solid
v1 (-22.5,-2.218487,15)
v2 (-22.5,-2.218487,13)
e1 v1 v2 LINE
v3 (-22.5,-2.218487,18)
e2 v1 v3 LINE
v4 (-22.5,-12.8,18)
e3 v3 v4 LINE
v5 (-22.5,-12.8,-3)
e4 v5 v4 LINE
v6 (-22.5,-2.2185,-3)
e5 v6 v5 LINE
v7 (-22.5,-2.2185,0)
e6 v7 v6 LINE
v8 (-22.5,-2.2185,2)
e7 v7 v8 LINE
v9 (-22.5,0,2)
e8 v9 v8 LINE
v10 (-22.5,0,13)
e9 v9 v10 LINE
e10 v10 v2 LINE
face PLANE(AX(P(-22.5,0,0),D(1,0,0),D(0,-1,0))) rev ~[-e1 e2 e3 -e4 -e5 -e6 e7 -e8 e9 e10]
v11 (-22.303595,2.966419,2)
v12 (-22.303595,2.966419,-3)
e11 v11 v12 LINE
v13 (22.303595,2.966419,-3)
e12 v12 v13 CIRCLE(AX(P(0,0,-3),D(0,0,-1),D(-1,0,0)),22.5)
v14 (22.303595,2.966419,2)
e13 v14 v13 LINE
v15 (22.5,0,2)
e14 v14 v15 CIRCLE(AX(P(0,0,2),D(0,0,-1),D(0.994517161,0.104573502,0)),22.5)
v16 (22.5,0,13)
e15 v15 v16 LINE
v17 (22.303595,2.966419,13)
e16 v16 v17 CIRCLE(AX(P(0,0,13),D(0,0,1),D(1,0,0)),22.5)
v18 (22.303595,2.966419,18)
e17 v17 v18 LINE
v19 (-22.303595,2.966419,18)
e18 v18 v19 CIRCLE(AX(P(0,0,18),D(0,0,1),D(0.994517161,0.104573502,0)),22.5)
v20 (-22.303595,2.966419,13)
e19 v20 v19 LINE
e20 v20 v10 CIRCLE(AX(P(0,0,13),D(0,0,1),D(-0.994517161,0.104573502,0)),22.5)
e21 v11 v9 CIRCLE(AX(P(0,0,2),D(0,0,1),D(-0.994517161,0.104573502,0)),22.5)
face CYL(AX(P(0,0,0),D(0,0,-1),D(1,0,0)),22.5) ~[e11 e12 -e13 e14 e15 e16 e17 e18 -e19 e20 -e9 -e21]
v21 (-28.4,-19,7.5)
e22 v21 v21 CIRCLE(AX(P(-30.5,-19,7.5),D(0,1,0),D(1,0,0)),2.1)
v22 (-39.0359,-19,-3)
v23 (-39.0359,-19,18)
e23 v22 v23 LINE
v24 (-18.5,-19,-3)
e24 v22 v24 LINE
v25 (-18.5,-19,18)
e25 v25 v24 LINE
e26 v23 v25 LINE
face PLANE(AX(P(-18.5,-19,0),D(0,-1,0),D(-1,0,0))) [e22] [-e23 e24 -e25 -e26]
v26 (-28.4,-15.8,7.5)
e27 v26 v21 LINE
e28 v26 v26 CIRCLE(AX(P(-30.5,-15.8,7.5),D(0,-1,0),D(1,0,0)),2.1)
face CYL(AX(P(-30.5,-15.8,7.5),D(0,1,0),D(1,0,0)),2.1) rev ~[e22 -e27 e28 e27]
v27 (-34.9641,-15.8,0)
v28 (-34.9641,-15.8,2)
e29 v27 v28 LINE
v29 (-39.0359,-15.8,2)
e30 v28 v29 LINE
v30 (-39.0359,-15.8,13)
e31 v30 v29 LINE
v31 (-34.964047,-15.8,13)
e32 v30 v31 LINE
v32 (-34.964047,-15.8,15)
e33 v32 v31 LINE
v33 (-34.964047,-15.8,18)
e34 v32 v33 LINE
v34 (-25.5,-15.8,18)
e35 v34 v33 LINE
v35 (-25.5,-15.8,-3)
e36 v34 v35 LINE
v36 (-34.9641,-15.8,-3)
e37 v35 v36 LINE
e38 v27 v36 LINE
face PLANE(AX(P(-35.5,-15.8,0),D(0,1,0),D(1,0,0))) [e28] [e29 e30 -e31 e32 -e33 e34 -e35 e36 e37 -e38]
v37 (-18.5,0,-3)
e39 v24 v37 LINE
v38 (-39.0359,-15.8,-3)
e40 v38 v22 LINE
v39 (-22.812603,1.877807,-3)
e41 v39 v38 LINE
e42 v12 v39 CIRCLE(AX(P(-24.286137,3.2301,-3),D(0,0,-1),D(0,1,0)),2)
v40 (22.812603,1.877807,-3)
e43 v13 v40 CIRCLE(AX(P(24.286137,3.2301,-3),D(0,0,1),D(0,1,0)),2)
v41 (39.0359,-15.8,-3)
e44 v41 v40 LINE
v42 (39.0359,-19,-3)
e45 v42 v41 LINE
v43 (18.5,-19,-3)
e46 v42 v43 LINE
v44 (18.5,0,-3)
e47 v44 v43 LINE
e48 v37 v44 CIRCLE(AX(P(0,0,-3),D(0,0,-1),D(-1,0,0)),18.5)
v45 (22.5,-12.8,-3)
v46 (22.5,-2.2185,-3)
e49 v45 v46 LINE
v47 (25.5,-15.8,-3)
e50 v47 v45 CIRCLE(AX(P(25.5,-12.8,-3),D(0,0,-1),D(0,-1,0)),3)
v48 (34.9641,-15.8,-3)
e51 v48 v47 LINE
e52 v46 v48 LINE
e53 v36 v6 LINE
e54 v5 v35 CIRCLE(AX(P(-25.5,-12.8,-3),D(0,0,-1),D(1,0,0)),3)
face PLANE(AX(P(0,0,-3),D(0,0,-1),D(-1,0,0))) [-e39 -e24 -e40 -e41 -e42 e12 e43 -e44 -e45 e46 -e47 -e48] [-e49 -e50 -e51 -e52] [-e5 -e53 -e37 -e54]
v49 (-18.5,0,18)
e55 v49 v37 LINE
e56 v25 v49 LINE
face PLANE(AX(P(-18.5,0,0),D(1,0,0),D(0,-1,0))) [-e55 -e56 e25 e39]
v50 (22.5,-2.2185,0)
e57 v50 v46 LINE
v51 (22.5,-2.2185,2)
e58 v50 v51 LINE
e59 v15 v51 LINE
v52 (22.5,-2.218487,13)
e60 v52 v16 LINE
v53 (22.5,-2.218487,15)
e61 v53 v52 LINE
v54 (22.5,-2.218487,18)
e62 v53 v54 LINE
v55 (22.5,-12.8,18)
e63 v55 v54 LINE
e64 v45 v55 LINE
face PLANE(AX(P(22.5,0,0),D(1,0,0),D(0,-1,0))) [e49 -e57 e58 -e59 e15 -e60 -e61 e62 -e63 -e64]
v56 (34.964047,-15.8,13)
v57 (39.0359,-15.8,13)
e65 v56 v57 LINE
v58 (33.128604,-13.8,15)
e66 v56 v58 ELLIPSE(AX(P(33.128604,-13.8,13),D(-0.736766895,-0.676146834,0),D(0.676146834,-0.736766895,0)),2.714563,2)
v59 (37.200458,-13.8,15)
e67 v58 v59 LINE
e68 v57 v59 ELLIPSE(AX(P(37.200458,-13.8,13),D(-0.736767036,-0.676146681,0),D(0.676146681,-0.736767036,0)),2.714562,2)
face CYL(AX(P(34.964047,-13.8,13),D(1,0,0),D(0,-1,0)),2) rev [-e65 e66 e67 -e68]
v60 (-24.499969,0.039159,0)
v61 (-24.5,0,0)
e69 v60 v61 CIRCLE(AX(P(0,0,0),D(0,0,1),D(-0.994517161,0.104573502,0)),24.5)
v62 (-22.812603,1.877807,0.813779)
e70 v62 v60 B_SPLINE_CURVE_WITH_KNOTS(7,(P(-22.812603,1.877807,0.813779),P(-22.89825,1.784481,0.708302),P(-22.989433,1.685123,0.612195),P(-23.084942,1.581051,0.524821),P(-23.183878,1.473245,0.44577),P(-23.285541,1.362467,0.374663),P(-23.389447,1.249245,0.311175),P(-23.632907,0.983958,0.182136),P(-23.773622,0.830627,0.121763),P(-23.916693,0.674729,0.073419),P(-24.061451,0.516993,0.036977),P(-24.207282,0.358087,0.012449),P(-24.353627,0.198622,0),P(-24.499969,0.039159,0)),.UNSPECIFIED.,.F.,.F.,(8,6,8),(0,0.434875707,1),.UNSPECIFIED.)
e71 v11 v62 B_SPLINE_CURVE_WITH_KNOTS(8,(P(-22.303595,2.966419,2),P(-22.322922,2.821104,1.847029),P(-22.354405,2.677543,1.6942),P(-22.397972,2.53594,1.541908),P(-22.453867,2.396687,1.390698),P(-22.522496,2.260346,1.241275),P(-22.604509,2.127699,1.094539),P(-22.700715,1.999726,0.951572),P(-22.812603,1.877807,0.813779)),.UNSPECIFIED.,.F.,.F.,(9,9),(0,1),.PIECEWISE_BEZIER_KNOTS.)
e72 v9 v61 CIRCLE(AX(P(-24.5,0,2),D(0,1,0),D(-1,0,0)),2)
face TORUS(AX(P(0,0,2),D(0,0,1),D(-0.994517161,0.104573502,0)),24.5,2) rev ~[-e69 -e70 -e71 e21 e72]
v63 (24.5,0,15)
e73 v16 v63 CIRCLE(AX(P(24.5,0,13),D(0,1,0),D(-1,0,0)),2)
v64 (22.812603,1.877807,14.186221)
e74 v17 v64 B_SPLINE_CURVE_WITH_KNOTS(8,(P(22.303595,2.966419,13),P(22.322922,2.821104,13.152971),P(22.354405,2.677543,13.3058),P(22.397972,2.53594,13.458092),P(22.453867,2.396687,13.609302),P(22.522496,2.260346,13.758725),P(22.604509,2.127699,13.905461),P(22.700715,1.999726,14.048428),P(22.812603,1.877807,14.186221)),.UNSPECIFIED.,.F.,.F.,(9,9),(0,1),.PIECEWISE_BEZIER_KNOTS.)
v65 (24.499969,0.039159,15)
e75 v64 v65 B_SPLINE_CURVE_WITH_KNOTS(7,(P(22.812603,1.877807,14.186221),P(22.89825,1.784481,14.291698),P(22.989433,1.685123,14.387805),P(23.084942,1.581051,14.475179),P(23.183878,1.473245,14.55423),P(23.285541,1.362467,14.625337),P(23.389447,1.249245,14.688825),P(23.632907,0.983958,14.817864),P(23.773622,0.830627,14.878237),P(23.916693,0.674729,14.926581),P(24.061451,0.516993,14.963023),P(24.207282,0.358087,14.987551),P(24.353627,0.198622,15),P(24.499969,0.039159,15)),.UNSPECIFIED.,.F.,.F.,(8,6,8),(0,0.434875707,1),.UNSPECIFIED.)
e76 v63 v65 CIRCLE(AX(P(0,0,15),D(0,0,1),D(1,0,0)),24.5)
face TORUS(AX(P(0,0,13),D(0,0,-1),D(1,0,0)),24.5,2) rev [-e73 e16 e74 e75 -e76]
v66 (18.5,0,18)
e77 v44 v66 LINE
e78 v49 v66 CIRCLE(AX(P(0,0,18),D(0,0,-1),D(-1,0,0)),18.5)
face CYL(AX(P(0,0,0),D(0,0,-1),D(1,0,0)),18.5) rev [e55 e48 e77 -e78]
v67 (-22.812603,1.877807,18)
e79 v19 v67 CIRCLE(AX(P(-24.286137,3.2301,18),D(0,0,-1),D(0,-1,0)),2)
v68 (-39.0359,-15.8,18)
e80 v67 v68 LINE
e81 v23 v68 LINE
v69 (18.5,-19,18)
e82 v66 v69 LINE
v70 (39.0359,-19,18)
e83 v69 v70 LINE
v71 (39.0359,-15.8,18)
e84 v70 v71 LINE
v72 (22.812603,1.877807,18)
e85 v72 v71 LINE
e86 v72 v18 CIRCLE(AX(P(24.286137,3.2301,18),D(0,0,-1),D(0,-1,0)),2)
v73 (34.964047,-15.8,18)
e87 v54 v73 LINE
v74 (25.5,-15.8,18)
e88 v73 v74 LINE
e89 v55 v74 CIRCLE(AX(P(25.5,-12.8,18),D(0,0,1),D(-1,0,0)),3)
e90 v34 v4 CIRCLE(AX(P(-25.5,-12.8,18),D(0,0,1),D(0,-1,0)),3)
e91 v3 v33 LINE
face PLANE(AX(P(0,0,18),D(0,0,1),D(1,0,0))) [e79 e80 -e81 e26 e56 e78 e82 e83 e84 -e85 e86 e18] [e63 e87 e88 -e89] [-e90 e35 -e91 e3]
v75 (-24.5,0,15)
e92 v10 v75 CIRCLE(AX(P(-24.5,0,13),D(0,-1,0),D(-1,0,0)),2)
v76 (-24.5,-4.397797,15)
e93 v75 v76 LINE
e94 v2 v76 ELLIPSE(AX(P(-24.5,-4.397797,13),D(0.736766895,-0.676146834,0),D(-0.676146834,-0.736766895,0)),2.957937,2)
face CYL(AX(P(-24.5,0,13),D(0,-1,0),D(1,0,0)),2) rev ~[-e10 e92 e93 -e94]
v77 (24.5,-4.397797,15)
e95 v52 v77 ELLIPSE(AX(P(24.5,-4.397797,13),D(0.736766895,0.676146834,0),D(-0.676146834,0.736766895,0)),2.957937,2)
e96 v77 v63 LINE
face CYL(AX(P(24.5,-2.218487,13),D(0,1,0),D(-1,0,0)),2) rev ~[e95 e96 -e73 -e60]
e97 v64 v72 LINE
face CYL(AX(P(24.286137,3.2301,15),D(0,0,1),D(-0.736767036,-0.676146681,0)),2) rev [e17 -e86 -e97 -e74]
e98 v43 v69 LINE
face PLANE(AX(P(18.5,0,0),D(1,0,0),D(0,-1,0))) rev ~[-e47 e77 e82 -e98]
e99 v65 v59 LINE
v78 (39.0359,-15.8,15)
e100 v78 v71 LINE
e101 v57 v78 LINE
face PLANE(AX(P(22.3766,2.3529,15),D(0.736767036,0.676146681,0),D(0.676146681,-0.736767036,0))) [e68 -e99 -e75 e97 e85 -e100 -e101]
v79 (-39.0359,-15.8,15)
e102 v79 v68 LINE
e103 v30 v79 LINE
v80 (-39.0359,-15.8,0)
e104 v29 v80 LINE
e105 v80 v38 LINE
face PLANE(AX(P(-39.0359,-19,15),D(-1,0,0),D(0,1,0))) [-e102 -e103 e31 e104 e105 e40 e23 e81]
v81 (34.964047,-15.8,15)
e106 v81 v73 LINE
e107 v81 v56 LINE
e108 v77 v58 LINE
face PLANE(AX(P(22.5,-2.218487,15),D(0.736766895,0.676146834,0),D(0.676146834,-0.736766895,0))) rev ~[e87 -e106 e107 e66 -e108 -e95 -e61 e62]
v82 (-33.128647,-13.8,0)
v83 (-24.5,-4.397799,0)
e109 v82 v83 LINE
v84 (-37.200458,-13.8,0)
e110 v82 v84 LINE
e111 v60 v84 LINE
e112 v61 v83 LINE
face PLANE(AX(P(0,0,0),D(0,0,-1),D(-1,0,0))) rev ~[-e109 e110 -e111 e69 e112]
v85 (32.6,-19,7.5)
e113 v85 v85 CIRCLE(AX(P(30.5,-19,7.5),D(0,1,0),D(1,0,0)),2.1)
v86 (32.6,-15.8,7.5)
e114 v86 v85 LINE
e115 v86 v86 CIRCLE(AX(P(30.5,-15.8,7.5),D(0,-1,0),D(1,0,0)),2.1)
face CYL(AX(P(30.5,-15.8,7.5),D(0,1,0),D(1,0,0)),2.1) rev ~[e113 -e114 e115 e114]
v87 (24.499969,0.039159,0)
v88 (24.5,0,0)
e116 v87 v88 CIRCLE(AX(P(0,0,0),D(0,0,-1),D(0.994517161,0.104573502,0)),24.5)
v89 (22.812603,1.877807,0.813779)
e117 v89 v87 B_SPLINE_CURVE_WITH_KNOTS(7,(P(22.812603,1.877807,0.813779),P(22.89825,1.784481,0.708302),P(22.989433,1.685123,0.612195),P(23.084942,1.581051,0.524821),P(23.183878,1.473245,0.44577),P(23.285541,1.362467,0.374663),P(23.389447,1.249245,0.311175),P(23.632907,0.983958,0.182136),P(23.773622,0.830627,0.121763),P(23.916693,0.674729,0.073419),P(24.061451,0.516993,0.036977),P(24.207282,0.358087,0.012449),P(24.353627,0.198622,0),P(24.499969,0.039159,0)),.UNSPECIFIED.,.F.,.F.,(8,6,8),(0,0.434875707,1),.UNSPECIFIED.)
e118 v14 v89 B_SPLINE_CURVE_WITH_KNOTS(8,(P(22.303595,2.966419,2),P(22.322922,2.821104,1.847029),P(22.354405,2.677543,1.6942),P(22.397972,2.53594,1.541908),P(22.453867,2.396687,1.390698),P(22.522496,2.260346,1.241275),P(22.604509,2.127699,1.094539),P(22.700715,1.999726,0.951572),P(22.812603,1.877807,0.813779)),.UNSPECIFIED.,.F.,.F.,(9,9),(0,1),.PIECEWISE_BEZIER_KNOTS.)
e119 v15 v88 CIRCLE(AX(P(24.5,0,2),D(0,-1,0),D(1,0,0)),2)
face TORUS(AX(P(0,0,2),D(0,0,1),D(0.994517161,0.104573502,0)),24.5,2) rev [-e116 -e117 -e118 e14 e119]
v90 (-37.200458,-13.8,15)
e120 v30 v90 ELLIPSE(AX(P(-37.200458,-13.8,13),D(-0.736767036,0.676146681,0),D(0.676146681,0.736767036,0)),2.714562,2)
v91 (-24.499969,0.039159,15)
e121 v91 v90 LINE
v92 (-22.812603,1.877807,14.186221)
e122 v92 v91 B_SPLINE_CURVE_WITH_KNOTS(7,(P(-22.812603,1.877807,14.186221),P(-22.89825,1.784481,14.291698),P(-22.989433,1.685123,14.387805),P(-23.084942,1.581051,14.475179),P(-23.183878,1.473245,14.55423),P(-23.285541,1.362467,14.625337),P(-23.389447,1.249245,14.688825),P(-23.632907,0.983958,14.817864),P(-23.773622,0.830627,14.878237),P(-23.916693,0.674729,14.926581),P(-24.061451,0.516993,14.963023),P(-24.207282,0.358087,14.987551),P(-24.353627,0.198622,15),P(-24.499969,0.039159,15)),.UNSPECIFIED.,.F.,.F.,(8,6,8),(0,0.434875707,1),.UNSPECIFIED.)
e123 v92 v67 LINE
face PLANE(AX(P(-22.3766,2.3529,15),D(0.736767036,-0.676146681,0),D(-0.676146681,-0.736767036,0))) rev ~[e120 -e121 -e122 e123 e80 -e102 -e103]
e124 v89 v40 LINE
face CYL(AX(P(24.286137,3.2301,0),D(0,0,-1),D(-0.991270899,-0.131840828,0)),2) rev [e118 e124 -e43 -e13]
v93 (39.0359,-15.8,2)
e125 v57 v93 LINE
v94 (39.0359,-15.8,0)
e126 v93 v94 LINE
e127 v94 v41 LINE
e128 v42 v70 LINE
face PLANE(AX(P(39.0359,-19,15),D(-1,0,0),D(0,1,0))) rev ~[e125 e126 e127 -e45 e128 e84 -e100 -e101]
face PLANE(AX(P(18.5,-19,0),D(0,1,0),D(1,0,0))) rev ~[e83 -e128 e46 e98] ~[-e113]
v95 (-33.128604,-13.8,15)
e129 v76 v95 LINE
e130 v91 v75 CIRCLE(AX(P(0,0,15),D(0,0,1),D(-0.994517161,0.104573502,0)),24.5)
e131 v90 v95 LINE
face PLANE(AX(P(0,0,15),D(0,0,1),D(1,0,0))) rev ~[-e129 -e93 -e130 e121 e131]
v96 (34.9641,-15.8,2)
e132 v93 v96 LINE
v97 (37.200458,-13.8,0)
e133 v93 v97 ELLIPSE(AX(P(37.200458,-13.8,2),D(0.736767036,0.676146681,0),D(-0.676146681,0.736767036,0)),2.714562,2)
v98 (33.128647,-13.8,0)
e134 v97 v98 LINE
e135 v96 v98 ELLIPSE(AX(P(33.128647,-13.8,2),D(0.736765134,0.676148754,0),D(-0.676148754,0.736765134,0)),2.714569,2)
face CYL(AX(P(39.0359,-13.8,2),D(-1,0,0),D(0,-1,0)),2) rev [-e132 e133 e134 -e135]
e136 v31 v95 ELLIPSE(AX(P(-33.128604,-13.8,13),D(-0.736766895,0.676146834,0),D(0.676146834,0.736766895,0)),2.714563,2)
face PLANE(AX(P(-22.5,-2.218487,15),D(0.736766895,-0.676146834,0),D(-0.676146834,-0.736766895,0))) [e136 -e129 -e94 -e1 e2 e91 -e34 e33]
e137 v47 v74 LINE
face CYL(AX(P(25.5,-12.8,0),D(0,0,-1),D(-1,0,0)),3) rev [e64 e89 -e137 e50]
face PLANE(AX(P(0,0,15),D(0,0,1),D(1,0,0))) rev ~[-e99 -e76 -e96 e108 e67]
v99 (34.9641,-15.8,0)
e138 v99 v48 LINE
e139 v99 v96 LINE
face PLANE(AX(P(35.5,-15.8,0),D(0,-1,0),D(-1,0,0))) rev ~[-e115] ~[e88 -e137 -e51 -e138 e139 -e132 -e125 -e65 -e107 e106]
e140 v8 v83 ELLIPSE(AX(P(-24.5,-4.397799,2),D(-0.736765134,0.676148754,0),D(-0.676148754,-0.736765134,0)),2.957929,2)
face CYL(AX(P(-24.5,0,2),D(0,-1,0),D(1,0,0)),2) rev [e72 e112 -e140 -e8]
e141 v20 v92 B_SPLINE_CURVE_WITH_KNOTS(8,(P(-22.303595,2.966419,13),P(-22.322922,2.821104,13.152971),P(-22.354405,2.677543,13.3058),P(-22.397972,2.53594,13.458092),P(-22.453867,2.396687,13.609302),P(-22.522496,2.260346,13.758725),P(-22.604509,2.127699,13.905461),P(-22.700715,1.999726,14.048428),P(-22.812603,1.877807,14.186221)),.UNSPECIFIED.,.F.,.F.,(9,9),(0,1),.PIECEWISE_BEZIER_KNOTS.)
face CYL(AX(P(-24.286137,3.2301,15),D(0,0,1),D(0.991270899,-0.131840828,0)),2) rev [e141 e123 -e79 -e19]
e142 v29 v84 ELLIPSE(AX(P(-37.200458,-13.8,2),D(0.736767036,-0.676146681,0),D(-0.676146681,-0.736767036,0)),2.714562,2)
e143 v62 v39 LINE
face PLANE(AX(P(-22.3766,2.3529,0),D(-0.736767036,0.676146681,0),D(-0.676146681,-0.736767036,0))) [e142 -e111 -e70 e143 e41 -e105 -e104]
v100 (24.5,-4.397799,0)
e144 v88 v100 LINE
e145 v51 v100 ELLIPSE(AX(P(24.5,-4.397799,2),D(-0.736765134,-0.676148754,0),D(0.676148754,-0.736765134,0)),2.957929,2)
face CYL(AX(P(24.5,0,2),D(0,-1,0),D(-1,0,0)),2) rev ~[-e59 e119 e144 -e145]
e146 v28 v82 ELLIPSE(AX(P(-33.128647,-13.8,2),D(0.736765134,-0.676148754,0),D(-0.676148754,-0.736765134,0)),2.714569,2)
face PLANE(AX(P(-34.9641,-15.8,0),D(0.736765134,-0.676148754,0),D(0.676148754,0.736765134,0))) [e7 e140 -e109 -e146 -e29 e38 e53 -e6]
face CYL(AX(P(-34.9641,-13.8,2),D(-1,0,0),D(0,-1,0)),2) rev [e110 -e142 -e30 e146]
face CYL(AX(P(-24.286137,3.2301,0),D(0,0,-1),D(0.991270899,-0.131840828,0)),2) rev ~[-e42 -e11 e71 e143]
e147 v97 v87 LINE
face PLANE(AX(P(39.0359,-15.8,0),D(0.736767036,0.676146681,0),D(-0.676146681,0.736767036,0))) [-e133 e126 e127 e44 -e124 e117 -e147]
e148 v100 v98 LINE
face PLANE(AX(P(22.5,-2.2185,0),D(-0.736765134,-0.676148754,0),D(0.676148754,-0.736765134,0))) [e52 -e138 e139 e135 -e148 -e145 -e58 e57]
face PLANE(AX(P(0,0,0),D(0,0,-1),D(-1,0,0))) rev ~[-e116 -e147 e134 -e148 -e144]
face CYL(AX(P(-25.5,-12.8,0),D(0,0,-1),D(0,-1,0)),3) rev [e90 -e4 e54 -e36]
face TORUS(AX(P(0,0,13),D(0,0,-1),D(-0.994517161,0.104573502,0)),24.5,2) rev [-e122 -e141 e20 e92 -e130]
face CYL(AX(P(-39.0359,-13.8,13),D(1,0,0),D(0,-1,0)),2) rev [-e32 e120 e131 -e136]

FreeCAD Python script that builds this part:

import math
import FreeCAD as App
import Part
import Sketcher

V = App.Vector


def edges_at(feature, points):
    """Names of the edges that pass closest to the given points."""
    edges = feature.Shape.Edges
    near = lambda p: min(range(len(edges)), key=lambda i: edges[i].distToShape(Part.Vertex(*p))[0])
    return sorted({f"Edge{near(p) + 1}" for p in points})


def add_polygon(sketch, points):
    """Adds a closed chain of lines whose ends are joined by coincident constraints."""
    first, n = sketch.GeometryCount, len(points)
    for a, b in zip(points, points[1:] + points[:1]):
        sketch.addGeometry(Part.LineSegment(App.Vector(*a, 0), App.Vector(*b, 0)), False)
    for i in range(n):
        sketch.addConstraint(Sketcher.Constraint("Coincident", first + i, 2, first + (i + 1) % n, 1))

doc = App.newDocument("Part")
body = doc.addObject("PartDesign::Body", "Body")

sketch1 = doc.addObject("Sketcher::SketchObject", "Sketch")
body.addObject(sketch1)
sketch1.AttachmentSupport = (doc.XY_Plane, [""])
sketch1.MapMode = "FlatFace"
sketch1.addGeometry(Part.ArcOfCircle(Part.Circle(V(0, 0, 0), V(0, 0, 1), 18.5), math.radians(0), math.radians(180)), False)
sketch1.addGeometry(Part.LineSegment(V(18.5, 0, 0), V(18.5, -19, 0)), False)
sketch1.addGeometry(Part.LineSegment(V(18.5, -19, 0), V(35.5, -19, 0)), False)
sketch1.addGeometry(Part.LineSegment(V(35.5, -19, 0), V(35.5, -15.8, 0)), False)
sketch1.addGeometry(Part.LineSegment(V(35.5, -15.8, 0), V(25.5, -15.8, 0)), False)
sketch1.addGeometry(Part.ArcOfCircle(Part.Circle(V(25.5, -12.8, 0), V(0, 0, 1), 3), math.radians(180), math.radians(270)), False)
sketch1.addGeometry(Part.LineSegment(V(22.5, -12.8, 0), V(22.5, 0, 0)), False)
sketch1.addGeometry(Part.ArcOfCircle(Part.Circle(V(0, 0, 0), V(0, 0, 1), 22.5), math.radians(0), math.radians(180)), False)
sketch1.addGeometry(Part.LineSegment(V(-22.5, 0, 0), V(-22.5, -12.8, 0)), False)
sketch1.addGeometry(Part.ArcOfCircle(Part.Circle(V(-25.5, -12.8, 0), V(0, 0, 1), 3), math.radians(-90), math.radians(0)), False)
sketch1.addGeometry(Part.LineSegment(V(-25.5, -15.8, 0), V(-35.5, -15.8, 0)), False)
sketch1.addGeometry(Part.LineSegment(V(-35.5, -15.8, 0), V(-35.5, -19, 0)), False)
sketch1.addGeometry(Part.LineSegment(V(-35.5, -19, 0), V(-18.5, -19, 0)), False)
sketch1.addGeometry(Part.LineSegment(V(-18.5, -19, 0), V(-18.5, 0, 0)), False)
sketch1.addConstraint(Sketcher.Constraint("Tangent", 0, 1, 1, 1))
sketch1.addConstraint(Sketcher.Constraint("Coincident", 1, 2, 2, 1))
sketch1.addConstraint(Sketcher.Constraint("Coincident", 2, 2, 3, 1))
sketch1.addConstraint(Sketcher.Constraint("Coincident", 3, 2, 4, 1))
sketch1.addConstraint(Sketcher.Constraint("Tangent", 4, 2, 5, 2))
sketch1.addConstraint(Sketcher.Constraint("Tangent", 5, 1, 6, 1))
sketch1.addConstraint(Sketcher.Constraint("Tangent", 6, 2, 7, 1))
sketch1.addConstraint(Sketcher.Constraint("Tangent", 7, 2, 8, 1))
sketch1.addConstraint(Sketcher.Constraint("Tangent", 8, 2, 9, 2))
sketch1.addConstraint(Sketcher.Constraint("Tangent", 9, 1, 10, 1))
sketch1.addConstraint(Sketcher.Constraint("Coincident", 10, 2, 11, 1))
sketch1.addConstraint(Sketcher.Constraint("Coincident", 11, 2, 12, 1))
sketch1.addConstraint(Sketcher.Constraint("Coincident", 12, 2, 13, 1))
sketch1.addConstraint(Sketcher.Constraint("Tangent", 13, 2, 0, 2))
sketch1.addConstraint(Sketcher.Constraint("Vertical", 1))
sketch1.addConstraint(Sketcher.Constraint("Horizontal", 2))
sketch1.addConstraint(Sketcher.Constraint("Vertical", 3))
sketch1.addConstraint(Sketcher.Constraint("Horizontal", 4))
sketch1.addConstraint(Sketcher.Constraint("Vertical", 6))
sketch1.addConstraint(Sketcher.Constraint("Vertical", 8))
sketch1.addConstraint(Sketcher.Constraint("Horizontal", 10))
sketch1.addConstraint(Sketcher.Constraint("Vertical", 11))
sketch1.addConstraint(Sketcher.Constraint("Horizontal", 12))
sketch1.addConstraint(Sketcher.Constraint("Vertical", 13))
sketch1.addConstraint(Sketcher.Constraint("Coincident", 0, 3, -1, 1))
sketch1.addConstraint(Sketcher.Constraint("Coincident", 7, 3, -1, 1))
sketch1.addConstraint(Sketcher.Constraint("Equal", 5, 9))
sketch1.addConstraint(Sketcher.Constraint("Symmetric", 3, 2, 10, 2, -2))
sketch1.addConstraint(Sketcher.Constraint("Horizontal", 2, 2, 11, 2))
sketch1.addConstraint(Sketcher.Constraint("Radius", 5, 3.0))
sketch1.addConstraint(Sketcher.Constraint("Radius", 0, 18.5))
sketch1.addConstraint(Sketcher.Constraint("Radius", 7, 22.5))
sketch1.addConstraint(Sketcher.Constraint("DistanceY", 3, 1, 3, 2, 3.2))
sketch1.addConstraint(Sketcher.Constraint("DistanceX", 5, 1, 3, 2, 13.0))
sketch1.addConstraint(Sketcher.Constraint("DistanceY", 1, 2, 1, 1, 19.0))
pad1 = doc.addObject("PartDesign::Pad", "Pad")
body.addObject(pad1)
pad1.Profile = sketch1
pad1.Length = 15

sketch2 = doc.addObject("Sketcher::SketchObject", "Sketch001")
body.addObject(sketch2)
sketch2.AttachmentSupport = (doc.XZ_Plane, [""])
sketch2.MapMode = "FlatFace"
sketch2.AttachmentOffset = App.Placement(V(0, 0, 15.8), App.Rotation())
sketch2.addGeometry(Part.Circle(V(30.5, 7.5, 0), V(0, 0, 1), 2.1), False)
sketch2.addGeometry(Part.Circle(V(-30.5, 7.5, 0), V(0, 0, 1), 2.1), False)
sketch2.addConstraint(Sketcher.Constraint("Equal", 0, 1))
sketch2.addConstraint(Sketcher.Constraint("Symmetric", 0, 3, 1, 3, -2))
sketch2.addConstraint(Sketcher.Constraint("Diameter", 0, 4.2))
sketch2.addConstraint(Sketcher.Constraint("DistanceX", 1, 3, 0, 3, 61.0))
sketch2.addConstraint(Sketcher.Constraint("DistanceY", -1, 1, 0, 3, 7.5))
pocket1 = doc.addObject("PartDesign::Pocket", "Pocket")
body.addObject(pocket1)
pocket1.Profile = sketch2
pocket1.Length = 20
pocket1.Reversed = True

sketch3 = doc.addObject("Sketcher::SketchObject", "Sketch002")
body.addObject(sketch3)
sketch3.AttachmentSupport = (doc.XY_Plane, [""])
sketch3.MapMode = "FlatFace"
sketch3.AttachmentOffset = App.Placement(V(0, 0, 15), App.Rotation())
sketch3.addGeometry(Part.LineSegment(V(18.5, -19, 0), V(39, -19, 0)), False)
sketch3.addGeometry(Part.LineSegment(V(39, -19, 0), V(39, -15.8, 0)), False)
sketch3.addGeometry(Part.LineSegment(V(39, -15.8, 0), V(22.4, 2.4, 0)), False)
sketch3.addGeometry(Part.ArcOfCircle(Part.Circle(V(0, 0, 0), V(0, 0, 1), 22.5), math.radians(6), math.radians(174)), False)
sketch3.addGeometry(Part.LineSegment(V(-22.4, 2.4, 0), V(-39, -15.8, 0)), False)
sketch3.addGeometry(Part.LineSegment(V(-39, -15.8, 0), V(-39, -19, 0)), False)
sketch3.addGeometry(Part.LineSegment(V(-39, -19, 0), V(-18.5, -19, 0)), False)
sketch3.addGeometry(Part.LineSegment(V(-18.5, -19, 0), V(-18.5, 0, 0)), False)
sketch3.addGeometry(Part.ArcOfCircle(Part.Circle(V(0, 0, 0), V(0, 0, 1), 18.5), math.radians(0), math.radians(180)), False)
sketch3.addGeometry(Part.LineSegment(V(18.5, 0, 0), V(18.5, -19, 0)), False)
sketch3.addGeometry(Part.LineSegment(V(22.5, -2.2, 0), V(35, -15.8, 0)), False)
sketch3.addGeometry(Part.LineSegment(V(35, -15.8, 0), V(25.5, -15.8, 0)), False)
sketch3.addGeometry(Part.ArcOfCircle(Part.Circle(V(25.5, -12.8, 0), V(0, 0, 1), 3), math.radians(180), math.radians(270)), False)
sketch3.addGeometry(Part.LineSegment(V(22.5, -12.8, 0), V(22.5, -2.2, 0)), False)
sketch3.addGeometry(Part.LineSegment(V(-25.5, -15.8, 0), V(-35, -15.8, 0)), False)
sketch3.addGeometry(Part.LineSegment(V(-35, -15.8, 0), V(-22.5, -2.2, 0)), False)
sketch3.addGeometry(Part.LineSegment(V(-22.5, -2.2, 0), V(-22.5, -12.8, 0)), False)
sketch3.addGeometry(Part.ArcOfCircle(Part.Circle(V(-25.5, -12.8, 0), V(0, 0, 1), 3), math.radians(-90), math.radians(0)), False)
sketch3.addConstraint(Sketcher.Constraint("Coincident", 0, 2, 1, 1))
sketch3.addConstraint(Sketcher.Constraint("Coincident", 1, 2, 2, 1))
sketch3.addConstraint(Sketcher.Constraint("Coincident", 2, 2, 3, 1))
sketch3.addConstraint(Sketcher.Constraint("Coincident", 3, 2, 4, 1))
sketch3.addConstraint(Sketcher.Constraint("Coincident", 4, 2, 5, 1))
sketch3.addConstraint(Sketcher.Constraint("Coincident", 5, 2, 6, 1))
sketch3.addConstraint(Sketcher.Constraint("Coincident", 6, 2, 7, 1))
sketch3.addConstraint(Sketcher.Constraint("Tangent", 7, 2, 8, 2))
sketch3.addConstraint(Sketcher.Constraint("Tangent", 8, 1, 9, 1))
sketch3.addConstraint(Sketcher.Constraint("Coincident", 9, 2, 0, 1))
sketch3.addConstraint(Sketcher.Constraint("Coincident", 10, 2, 11, 1))
sketch3.addConstraint(Sketcher.Constraint("Tangent", 11, 2, 12, 2))
sketch3.addConstraint(Sketcher.Constraint("Tangent", 12, 1, 13, 1))
sketch3.addConstraint(Sketcher.Constraint("Coincident", 13, 2, 10, 1))
sketch3.addConstraint(Sketcher.Constraint("Coincident", 14, 2, 15, 1))
sketch3.addConstraint(Sketcher.Constraint("Coincident", 15, 2, 16, 1))
sketch3.addConstraint(Sketcher.Constraint("Tangent", 16, 2, 17, 2))
sketch3.addConstraint(Sketcher.Constraint("Tangent", 17, 1, 14, 1))
sketch3.addConstraint(Sketcher.Constraint("Horizontal", 0))
sketch3.addConstraint(Sketcher.Constraint("Vertical", 1))
sketch3.addConstraint(Sketcher.Constraint("Vertical", 5))
sketch3.addConstraint(Sketcher.Constraint("Horizontal", 6))
sketch3.addConstraint(Sketcher.Constraint("Vertical", 7))
sketch3.addConstraint(Sketcher.Constraint("Vertical", 9))
sketch3.addConstraint(Sketcher.Constraint("Horizontal", 11))
sketch3.addConstraint(Sketcher.Constraint("Vertical", 13))
sketch3.addConstraint(Sketcher.Constraint("Horizontal", 14))
sketch3.addConstraint(Sketcher.Constraint("Vertical", 16))
sketch3.addConstraint(Sketcher.Constraint("Coincident", 3, 3, -1, 1))
sketch3.addConstraint(Sketcher.Constraint("Coincident", 8, 3, -1, 1))
sketch3.addConstraint(Sketcher.Constraint("Equal", 12, 17))
sketch3.addConstraint(Sketcher.Constraint("Symmetric", 12, 3, 17, 3, -2))
sketch3.addConstraint(Sketcher.Constraint("Symmetric", 1, 2, 4, 2, -2))
sketch3.addConstraint(Sketcher.Constraint("Parallel", 2, 10))
sketch3.addConstraint(Sketcher.Constraint("Parallel", 4, 15))
sketch3.addConstraint(Sketcher.Constraint("Horizontal", 2, 2, 3, 2))
sketch3.addConstraint(Sketcher.Constraint("Horizontal", 0, 2, 5, 2))
sketch3.addConstraint(Sketcher.Constraint("Horizontal", 4, 2, 10, 2))
sketch3.addConstraint(Sketcher.Constraint("Horizontal", 13, 2, 15, 2))
sketch3.addConstraint(Sketcher.Constraint("Radius", 12, 3.0))
sketch3.addConstraint(Sketcher.Constraint("Radius", 3, 22.5))
sketch3.addConstraint(Sketcher.Constraint("Radius", 8, 18.5))
sketch3.addConstraint(Sketcher.Constraint("DistanceY", 7, 1, 7, 2, 19.0))
sketch3.addConstraint(Sketcher.Constraint("DistanceY", 1, 1, 1, 2, 3.2))
sketch3.addConstraint(Sketcher.Constraint("DistanceX", 17, 3, 12, 3, 51.0))
sketch3.addConstraint(Sketcher.Constraint("DistanceX", 0, 1, 0, 2, 20.536))
sketch3.addConstraint(Sketcher.Constraint("DistanceX", 11, 2, 11, 1, 9.464))
sketch3.addConstraint(Sketcher.Constraint("Distance", 10, 18.434))
pad2 = doc.addObject("PartDesign::Pad", "Pad001")
body.addObject(pad2)
pad2.Profile = sketch3
pad2.Length = 3

sketch4 = doc.addObject("Sketcher::SketchObject", "Sketch003")
body.addObject(sketch4)
sketch4.AttachmentSupport = (doc.XY_Plane, [""])
sketch4.MapMode = "FlatFace"
sketch4.addGeometry(Part.LineSegment(V(-18.5, 0, 0), V(-18.5, -19, 0)), False)
sketch4.addGeometry(Part.LineSegment(V(-18.5, -19, 0), V(-39, -19, 0)), False)
sketch4.addGeometry(Part.LineSegment(V(-39, -19, 0), V(-39, -15.8, 0)), False)
sketch4.addGeometry(Part.LineSegment(V(-39, -15.8, 0), V(-22.4, 2.4, 0)), False)
sketch4.addGeometry(Part.ArcOfCircle(Part.Circle(V(0, 0, 0), V(0, 0, 1), 22.5), math.radians(6), math.radians(174)), False)
sketch4.addGeometry(Part.LineSegment(V(22.4, 2.4, 0), V(39, -15.8, 0)), False)
sketch4.addGeometry(Part.LineSegment(V(39, -15.8, 0), V(39, -19, 0)), False)
sketch4.addGeometry(Part.LineSegment(V(39, -19, 0), V(18.5, -19, 0)), False)
sketch4.addGeometry(Part.LineSegment(V(18.5, -19, 0), V(18.5, 0, 0)), False)
sketch4.addGeometry(Part.ArcOfCircle(Part.Circle(V(0, 0, 0), V(0, 0, 1), 18.5), math.radians(0), math.radians(180)), False)
sketch4.addGeometry(Part.LineSegment(V(25.5, -15.8, 0), V(35, -15.8, 0)), False)
sketch4.addGeometry(Part.LineSegment(V(35, -15.8, 0), V(22.5, -2.2, 0)), False)
sketch4.addGeometry(Part.LineSegment(V(22.5, -2.2, 0), V(22.5, -12.8, 0)), False)
sketch4.addGeometry(Part.ArcOfCircle(Part.Circle(V(25.5, -12.8, 0), V(0, 0, 1), 3), math.radians(180), math.radians(270)), False)
sketch4.addGeometry(Part.LineSegment(V(-22.5, -12.8, 0), V(-22.5, -2.2, 0)), False)
sketch4.addGeometry(Part.LineSegment(V(-22.5, -2.2, 0), V(-35, -15.8, 0)), False)
sketch4.addGeometry(Part.LineSegment(V(-35, -15.8, 0), V(-25.5, -15.8, 0)), False)
sketch4.addGeometry(Part.ArcOfCircle(Part.Circle(V(-25.5, -12.8, 0), V(0, 0, 1), 3), math.radians(-90), math.radians(0)), False)
sketch4.addConstraint(Sketcher.Constraint("Coincident", 0, 2, 1, 1))
sketch4.addConstraint(Sketcher.Constraint("Coincident", 1, 2, 2, 1))
sketch4.addConstraint(Sketcher.Constraint("Coincident", 2, 2, 3, 1))
sketch4.addConstraint(Sketcher.Constraint("Coincident", 3, 2, 4, 2))
sketch4.addConstraint(Sketcher.Constraint("Coincident", 4, 1, 5, 1))
sketch4.addConstraint(Sketcher.Constraint("Coincident", 5, 2, 6, 1))
sketch4.addConstraint(Sketcher.Constraint("Coincident", 6, 2, 7, 1))
sketch4.addConstraint(Sketcher.Constraint("Coincident", 7, 2, 8, 1))
sketch4.addConstraint(Sketcher.Constraint("Tangent", 8, 2, 9, 1))
sketch4.addConstraint(Sketcher.Constraint("Tangent", 9, 2, 0, 1))
sketch4.addConstraint(Sketcher.Constraint("Coincident", 10, 2, 11, 1))
sketch4.addConstraint(Sketcher.Constraint("Coincident", 11, 2, 12, 1))
sketch4.addConstraint(Sketcher.Constraint("Tangent", 12, 2, 13, 1))
sketch4.addConstraint(Sketcher.Constraint("Tangent", 13, 2, 10, 1))
sketch4.addConstraint(Sketcher.Constraint("Coincident", 14, 2, 15, 1))
sketch4.addConstraint(Sketcher.Constraint("Coincident", 15, 2, 16, 1))
sketch4.addConstraint(Sketcher.Constraint("Tangent", 16, 2, 17, 1))
sketch4.addConstraint(Sketcher.Constraint("Tangent", 17, 2, 14, 1))
sketch4.addConstraint(Sketcher.Constraint("Vertical", 0))
sketch4.addConstraint(Sketcher.Constraint("Horizontal", 1))
sketch4.addConstraint(Sketcher.Constraint("Vertical", 2))
sketch4.addConstraint(Sketcher.Constraint("Vertical", 6))
sketch4.addConstraint(Sketcher.Constraint("Horizontal", 7))
sketch4.addConstraint(Sketcher.Constraint("Vertical", 8))
sketch4.addConstraint(Sketcher.Constraint("Horizontal", 10))
sketch4.addConstraint(Sketcher.Constraint("Vertical", 12))
sketch4.addConstraint(Sketcher.Constraint("Vertical", 14))
sketch4.addConstraint(Sketcher.Constraint("Horizontal", 16))
sketch4.addConstraint(Sketcher.Constraint("Coincident", 4, 3, -1, 1))
sketch4.addConstraint(Sketcher.Constraint("Coincident", 9, 3, -1, 1))
sketch4.addConstraint(Sketcher.Constraint("Equal", 13, 17))
sketch4.addConstraint(Sketcher.Constraint("Symmetric", 13, 3, 17, 3, -2))
sketch4.addConstraint(Sketcher.Constraint("Symmetric", 2, 2, 5, 2, -2))
sketch4.addConstraint(Sketcher.Constraint("Parallel", 5, 11))
sketch4.addConstraint(Sketcher.Constraint("Parallel", 3, 15))
sketch4.addConstraint(Sketcher.Constraint("Horizontal", 3, 2, 4, 1))
sketch4.addConstraint(Sketcher.Constraint("Horizontal", 1, 2, 6, 2))
sketch4.addConstraint(Sketcher.Constraint("Horizontal", 5, 2, 10, 2))
sketch4.addConstraint(Sketcher.Constraint("Horizontal", 11, 2, 14, 2))
sketch4.addConstraint(Sketcher.Constraint("Radius", 13, 3.0))
sketch4.addConstraint(Sketcher.Constraint("Radius", 4, 22.5))
sketch4.addConstraint(Sketcher.Constraint("Radius", 9, 18.5))
sketch4.addConstraint(Sketcher.Constraint("DistanceY", 0, 2, 0, 1, 19.0))
sketch4.addConstraint(Sketcher.Constraint("DistanceY", 2, 1, 2, 2, 3.2))
sketch4.addConstraint(Sketcher.Constraint("DistanceX", 17, 3, 13, 3, 51.0))
sketch4.addConstraint(Sketcher.Constraint("DistanceX", 1, 2, 1, 1, 20.536))
sketch4.addConstraint(Sketcher.Constraint("DistanceX", 10, 1, 10, 2, 9.464))
sketch4.addConstraint(Sketcher.Constraint("Distance", 11, 18.434))
pad3 = doc.addObject("PartDesign::Pad", "Pad002")
body.addObject(pad3)
pad3.Profile = sketch4
pad3.Length = 3
pad3.Reversed = True

sketch5 = doc.addObject("Sketcher::SketchObject", "Sketch004")
body.addObject(sketch5)
sketch5.AttachmentSupport = (doc.XY_Plane, [""])
sketch5.MapMode = "FlatFace"
sketch5.AttachmentOffset = App.Placement(V(0, 0, 15), App.Rotation())
add_polygon(sketch5, [(39, -19), (35.5, -19), (35.5, -15.8), (39, -15.8)])
add_polygon(sketch5, [(-39, -15.8), (-35.5, -15.8), (-35.5, -19), (-39, -19)])
sketch5.addConstraint(Sketcher.Constraint("Horizontal", 0))
sketch5.addConstraint(Sketcher.Constraint("Vertical", 1))
sketch5.addConstraint(Sketcher.Constraint("Horizontal", 2))
sketch5.addConstraint(Sketcher.Constraint("Vertical", 3))
sketch5.addConstraint(Sketcher.Constraint("Horizontal", 4))
sketch5.addConstraint(Sketcher.Constraint("Vertical", 5))
sketch5.addConstraint(Sketcher.Constraint("Horizontal", 6))
sketch5.addConstraint(Sketcher.Constraint("Vertical", 7))
sketch5.addConstraint(Sketcher.Constraint("Symmetric", 1, 2, 4, 2, -2))
sketch5.addConstraint(Sketcher.Constraint("Symmetric", 3, 2, 6, 2, -2))
sketch5.addConstraint(Sketcher.Constraint("DistanceY", 1, 1, 1, 2, 3.2))
sketch5.addConstraint(Sketcher.Constraint("DistanceY", 0, 2, -1, 1, 19.0))
sketch5.addConstraint(Sketcher.Constraint("DistanceX", 4, 2, 1, 2, 71.0))
sketch5.addConstraint(Sketcher.Constraint("DistanceX", 0, 2, 0, 1, 3.536))
pad4 = doc.addObject("PartDesign::Pad", "Pad003")
body.addObject(pad4)
pad4.Profile = sketch5
pad4.Length = 15
pad4.Reversed = True
doc.recompute()

fillet = doc.addObject("PartDesign::Fillet", "Fillet")
body.addObject(fillet)
fillet.Base = (pad4, edges_at(pad4, [
    (-37, -15.8, 15),
    (-37, -15.8, 0),
    (-22.5, -1.109, 0),
    (-22.469, 1.178, 0),
    (-22.5, -1.109, 15),
    (-22.469, 1.178, 15),
    (22.377, 2.353, 16.5),
    (22.377, 2.353, -1.5),
    (22.5, -1.109, 0),
    (22.469, 1.178, 0),
    (37, -15.8, 0),
    (37, -15.8, 15),
    (22.469, 1.178, 15),
    (22.5, -1.109, 15),
    (-22.377, 2.353, 16.5),
    (-22.377, 2.353, -1.5),
]))
fillet.Radius = 2

doc.recompute()
